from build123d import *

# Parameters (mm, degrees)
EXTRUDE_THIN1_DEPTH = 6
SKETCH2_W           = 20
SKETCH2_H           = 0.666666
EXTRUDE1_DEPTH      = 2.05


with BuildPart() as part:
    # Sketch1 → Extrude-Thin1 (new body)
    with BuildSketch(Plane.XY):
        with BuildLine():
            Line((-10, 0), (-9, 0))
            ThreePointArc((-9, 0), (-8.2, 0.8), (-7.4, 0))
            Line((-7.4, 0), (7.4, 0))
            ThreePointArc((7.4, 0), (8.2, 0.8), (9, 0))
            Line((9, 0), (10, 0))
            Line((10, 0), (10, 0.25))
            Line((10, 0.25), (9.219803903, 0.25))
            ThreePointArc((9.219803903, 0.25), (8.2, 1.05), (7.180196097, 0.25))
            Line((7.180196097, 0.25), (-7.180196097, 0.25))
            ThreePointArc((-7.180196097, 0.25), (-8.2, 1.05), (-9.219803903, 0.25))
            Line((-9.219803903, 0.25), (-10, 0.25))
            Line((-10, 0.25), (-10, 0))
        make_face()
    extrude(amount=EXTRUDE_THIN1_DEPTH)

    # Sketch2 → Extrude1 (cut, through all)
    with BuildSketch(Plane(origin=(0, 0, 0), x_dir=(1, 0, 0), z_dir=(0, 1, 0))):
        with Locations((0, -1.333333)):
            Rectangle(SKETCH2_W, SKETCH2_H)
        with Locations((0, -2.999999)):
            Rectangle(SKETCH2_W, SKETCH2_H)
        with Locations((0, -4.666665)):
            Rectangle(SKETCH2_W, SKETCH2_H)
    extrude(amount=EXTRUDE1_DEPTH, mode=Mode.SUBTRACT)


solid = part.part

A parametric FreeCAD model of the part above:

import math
import FreeCAD as App
import Part
import Sketcher
from FreeCAD import Vector


def add_polygon(sketch, points):
    """Adds a closed chain of lines whose ends are joined by coincident constraints."""
    first, n = sketch.GeometryCount, len(points)
    for a, b in zip(points, points[1:] + points[:1]):
        sketch.addGeometry(Part.LineSegment(App.Vector(*a, 0), App.Vector(*b, 0)), False)
    for i in range(n):
        sketch.addConstraint(Sketcher.Constraint("Coincident", first + i, 2, first + (i + 1) % n, 1))

doc = App.newDocument("Part")
body = doc.addObject("PartDesign::Body", "Body")
body.AllowCompound = True

sketch1 = body.newObject("Sketcher::SketchObject", "Sketch")
sketch1.AttachmentSupport = (doc.getObject("XY_Plane"), [""])
sketch1.MapMode = "FlatFace"
sketch1.addGeometry([
    Part.LineSegment(Vector(-10, 0, 0), Vector(-9, 0, 0)),
    Part.ArcOfCircle(Part.Circle(Vector(-8.2, 0, 0), Vector(0, 0, 1), 0.8), math.radians(0), math.radians(180)),
    Part.LineSegment(Vector(-7.4, 0, 0), Vector(7.4, 0, 0)),
    Part.ArcOfCircle(Part.Circle(Vector(8.2, 0, 0), Vector(0, 0, 1), 0.8), math.radians(0), math.radians(180)),
    Part.LineSegment(Vector(9, 0, 0), Vector(10, 0, 0)),
    Part.LineSegment(Vector(10, 0, 0), Vector(10, 0.25, 0)),
    Part.LineSegment(Vector(10, 0.25, 0), Vector(9.22, 0.25, 0)),
    Part.ArcOfCircle(Part.Circle(Vector(8.2, 0, 0), Vector(0, 0, 1), 1.05), math.radians(14), math.radians(166)),
    Part.LineSegment(Vector(7.18, 0.25, 0), Vector(-7.18, 0.25, 0)),
    Part.ArcOfCircle(Part.Circle(Vector(-8.2, 0, 0), Vector(0, 0, 1), 1.05), math.radians(14), math.radians(166)),
    Part.LineSegment(Vector(-9.22, 0.25, 0), Vector(-10, 0.25, 0)),
    Part.LineSegment(Vector(-10, 0.25, 0), Vector(-10, 0, 0)),
], False)
sketch1.addConstraint([
    Sketcher.Constraint("Coincident", 0, 2, 1, 2),
    Sketcher.Constraint("Coincident", 1, 1, 2, 1),
    Sketcher.Constraint("Coincident", 2, 2, 3, 2),
    Sketcher.Constraint("Coincident", 3, 1, 4, 1),
    Sketcher.Constraint("Coincident", 4, 2, 5, 1),
    Sketcher.Constraint("Coincident", 5, 2, 6, 1),
    Sketcher.Constraint("Coincident", 6, 2, 7, 1),
    Sketcher.Constraint("Coincident", 7, 2, 8, 1),
    Sketcher.Constraint("Coincident", 8, 2, 9, 1),
    Sketcher.Constraint("Coincident", 9, 2, 10, 1),
    Sketcher.Constraint("Coincident", 10, 2, 11, 1),
    Sketcher.Constraint("Coincident", 11, 2, 0, 1),
    Sketcher.Constraint("Horizontal", 0),
    Sketcher.Constraint("Horizontal", 2),
    Sketcher.Constraint("Horizontal", 4),
    Sketcher.Constraint("Vertical", 5),
    Sketcher.Constraint("Horizontal", 6),
    Sketcher.Constraint("Horizontal", 8),
    Sketcher.Constraint("Horizontal", 10),
    Sketcher.Constraint("Vertical", 11),
    Sketcher.Constraint("Coincident", 7, 3, 3, 3),
    Sketcher.Constraint("Coincident", 9, 3, 1, 3),
    Sketcher.Constraint("Equal", 1, 3),
    Sketcher.Constraint("Equal", 7, 9),
    Sketcher.Constraint("Symmetric", 1, 3, 3, 3, -1, 1),
    Sketcher.Constraint("Symmetric", 4, 2, 11, 2, -1, 1),
    Sketcher.Constraint("Symmetric", 6, 2, 9, 2, -2),
    Sketcher.Constraint("PointOnObject", 0, 2, -1),
    Sketcher.Constraint("PointOnObject", 1, 1, -1),
    Sketcher.Constraint("Horizontal", 6, 2, 7, 2),
    Sketcher.Constraint("Radius", 1, 0.8),
    Sketcher.Constraint("DistanceX", 0, 1, 0, 2, 1.0),
    Sketcher.Constraint("Radius", 7, 1.05),
    Sketcher.Constraint("DistanceX", 2, 1, 2, 2, 14.8),
    Sketcher.Constraint("DistanceY", 5, 1, 5, 2, 0.25),
])
pad1 = body.newObject("PartDesign::Pad", "Pad")
pad1.Profile = sketch1
pad1.Length = 6

sketch2 = body.newObject("Sketcher::SketchObject", "Sketch001")
sketch2.AttachmentSupport = (doc.getObject("XZ_Plane"), [""])
sketch2.MapMode = "FlatFace"
add_polygon(sketch2, [(-10, 1), (-10, 1.7), (10, 1.7), (10, 1)])
add_polygon(sketch2, [(-10, 2.7), (-10, 3.3), (10, 3.3), (10, 2.7)])
add_polygon(sketch2, [(-10, 4.3), (-10, 5), (10, 5), (10, 4.3)])
sketch2.addConstraint([
    Sketcher.Constraint("Vertical", 0),
    Sketcher.Constraint("Horizontal", 1),
    Sketcher.Constraint("Vertical", 2),
    Sketcher.Constraint("Horizontal", 3),
    Sketcher.Constraint("Vertical", 4),
    Sketcher.Constraint("Horizontal", 5),
    Sketcher.Constraint("Vertical", 6),
    Sketcher.Constraint("Horizontal", 7),
    Sketcher.Constraint("Vertical", 8),
    Sketcher.Constraint("Horizontal", 9),
    Sketcher.Constraint("Vertical", 10),
    Sketcher.Constraint("Horizontal", 11),
    Sketcher.Constraint("Vertical", 3, 2, 4, 2),
    Sketcher.Constraint("Vertical", 2, 2, 5, 2),
    Sketcher.Constraint("Vertical", 7, 2, 8, 2),
    Sketcher.Constraint("Vertical", 6, 2, 9, 2),
    Sketcher.Constraint("Equal", 2, 4),
    Sketcher.Constraint("Equal", 6, 8),
    Sketcher.Constraint("DistanceX", 1, 1, 1, 2, 20.0),
    Sketcher.Constraint("DistanceX", 0, 2, -1, 1, 10.0),
    Sketcher.Constraint("DistanceY", -1, 1, 2, 2, 1.0),
    Sketcher.Constraint("DistanceY", 1, 2, 6, 2, 1.0),
    Sketcher.Constraint("DistanceY", 5, 2, 10, 2, 1.0),
    Sketcher.Constraint("DistanceY", 0, 1, 0, 2, 0.666666),
])
pocket1 = body.newObject("PartDesign::Pocket", "Pocket")
pocket1.Profile = sketch2
pocket1.Type = "ThroughAll"

doc.recompute()
